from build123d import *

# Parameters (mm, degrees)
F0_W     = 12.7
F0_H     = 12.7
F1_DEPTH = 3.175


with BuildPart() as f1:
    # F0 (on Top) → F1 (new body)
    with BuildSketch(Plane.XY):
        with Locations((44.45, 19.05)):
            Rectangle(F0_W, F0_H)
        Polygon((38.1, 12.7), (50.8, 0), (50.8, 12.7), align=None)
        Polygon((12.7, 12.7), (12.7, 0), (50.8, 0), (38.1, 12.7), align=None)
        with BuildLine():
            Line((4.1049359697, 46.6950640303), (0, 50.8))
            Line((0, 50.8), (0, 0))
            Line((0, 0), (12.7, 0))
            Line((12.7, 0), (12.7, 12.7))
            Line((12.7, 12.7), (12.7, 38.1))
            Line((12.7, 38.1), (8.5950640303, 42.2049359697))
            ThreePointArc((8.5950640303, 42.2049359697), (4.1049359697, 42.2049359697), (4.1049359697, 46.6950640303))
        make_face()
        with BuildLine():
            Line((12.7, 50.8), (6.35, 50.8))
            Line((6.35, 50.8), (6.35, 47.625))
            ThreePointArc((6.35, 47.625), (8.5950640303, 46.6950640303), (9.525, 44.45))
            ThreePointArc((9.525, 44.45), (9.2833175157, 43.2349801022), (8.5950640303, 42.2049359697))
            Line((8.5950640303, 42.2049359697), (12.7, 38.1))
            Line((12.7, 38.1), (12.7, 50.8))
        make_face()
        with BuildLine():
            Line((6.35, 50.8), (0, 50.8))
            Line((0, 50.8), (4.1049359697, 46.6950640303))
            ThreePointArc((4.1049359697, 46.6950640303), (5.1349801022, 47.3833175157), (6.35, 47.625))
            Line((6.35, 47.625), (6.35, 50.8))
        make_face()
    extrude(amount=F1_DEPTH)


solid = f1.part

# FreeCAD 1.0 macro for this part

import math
import FreeCAD as App
import Part
import Sketcher
from FreeCAD import Vector
Q = App.Units.Quantity


def add_polygon(sketch, points):
    """Adds a closed chain of lines whose ends are joined by coincident constraints."""
    first, n = sketch.GeometryCount, len(points)
    for a, b in zip(points, points[1:] + points[:1]):
        sketch.addGeometry(Part.LineSegment(App.Vector(*a, 0), App.Vector(*b, 0)), False)
    for i in range(n):
        sketch.addConstraint(Sketcher.Constraint("Coincident", first + i, 2, first + (i + 1) % n, 1))

doc = App.newDocument("Part")
body = doc.addObject("PartDesign::Body", "Body")

sketch1 = body.newObject("Sketcher::SketchObject", "Sketch")
sketch1.AttachmentSupport = (doc.getObject("XY_Plane"), [""])
sketch1.MapMode = "FlatFace"
add_polygon(sketch1, [(38.1, 25.4), (38.1, 12.7), (12.7, 12.7), (12.7, 50.8), (0, 50.8), (0, 0), (50.8, 0), (50.8, 25.4)])
sketch1.addGeometry(Part.ArcOfCircle(Part.Circle(Vector(6.3, 44.5, 0), Vector(0, 0, 1), 3.2), math.radians(0), math.radians(90)), False)
sketch1.addGeometry(Part.ArcOfCircle(Part.Circle(Vector(6.3, 44.5, 0), Vector(0, 0, 1), 3.2), math.radians(-45), math.radians(0)), False)
sketch1.addGeometry(Part.ArcOfCircle(Part.Circle(Vector(6.3, 44.5, 0), Vector(0, 0, 1), 3.2), math.radians(135), math.radians(315)), False)
sketch1.addGeometry(Part.ArcOfCircle(Part.Circle(Vector(6.3, 44.5, 0), Vector(0, 0, 1), 3.2), math.radians(90), math.radians(135)), False)
sketch1.addConstraint(Sketcher.Constraint("Tangent", 8, 1, 9, 2))
sketch1.addConstraint(Sketcher.Constraint("Tangent", 9, 1, 10, 2))
sketch1.addConstraint(Sketcher.Constraint("Tangent", 10, 1, 11, 2))
sketch1.addConstraint(Sketcher.Constraint("Tangent", 11, 1, 8, 2))
sketch1.addConstraint(Sketcher.Constraint("Vertical", 0))
sketch1.addConstraint(Sketcher.Constraint("Horizontal", 1))
sketch1.addConstraint(Sketcher.Constraint("Vertical", 2))
sketch1.addConstraint(Sketcher.Constraint("Horizontal", 3))
sketch1.addConstraint(Sketcher.Constraint("Vertical", 4))
sketch1.addConstraint(Sketcher.Constraint("Horizontal", 5))
sketch1.addConstraint(Sketcher.Constraint("Vertical", 6))
sketch1.addConstraint(Sketcher.Constraint("Horizontal", 7))
sketch1.addConstraint(Sketcher.Constraint("Coincident", 4, 2, -1, 1))
sketch1.addConstraint(Sketcher.Constraint("Equal", 8, 9))
sketch1.addConstraint(Sketcher.Constraint("Horizontal", 11, 3, 8, 1))
sketch1.addConstraint(Sketcher.Constraint("Vertical", 10, 3, 11, 1))
sketch1.addConstraint(Sketcher.Constraint("Equal", 3, 7))
sketch1.addConstraint(Sketcher.Constraint("Equal", 7, 0))
sketch1.addConstraint(Sketcher.Constraint("Equal", 5, 4))
sketch1.addConstraint(Sketcher.Constraint("Equal", 1, 6))
sketch1.addConstraint(Sketcher.Constraint("DistanceX", 1, 2, 1, 1, Q("1 in")))
sketch1.addConstraint(Sketcher.Constraint("DistanceX", 5, 1, 5, 2, Q("2 in")))
sketch1.addConstraint(Sketcher.Constraint("Radius", 8, Q("0.125 in")))
sketch1.addConstraint(Sketcher.Constraint("DistanceX", -1, 1, 8, 3, Q("0.25 in")))
sketch1.addConstraint(Sketcher.Constraint("DistanceY", -1, 1, 8, 3, Q("1.75 in")))
sketch1.addConstraint(Sketcher.Constraint("DistanceX", -1, 1, 9, 1, 8.595064))
sketch1.addConstraint(Sketcher.Constraint("DistanceX", -1, 1, 10, 1, 4.104936))
pad1 = body.newObject("PartDesign::Pad", "Pad")
pad1.Profile = sketch1
pad1.Length = Q("0.125 in")

doc.recompute()
